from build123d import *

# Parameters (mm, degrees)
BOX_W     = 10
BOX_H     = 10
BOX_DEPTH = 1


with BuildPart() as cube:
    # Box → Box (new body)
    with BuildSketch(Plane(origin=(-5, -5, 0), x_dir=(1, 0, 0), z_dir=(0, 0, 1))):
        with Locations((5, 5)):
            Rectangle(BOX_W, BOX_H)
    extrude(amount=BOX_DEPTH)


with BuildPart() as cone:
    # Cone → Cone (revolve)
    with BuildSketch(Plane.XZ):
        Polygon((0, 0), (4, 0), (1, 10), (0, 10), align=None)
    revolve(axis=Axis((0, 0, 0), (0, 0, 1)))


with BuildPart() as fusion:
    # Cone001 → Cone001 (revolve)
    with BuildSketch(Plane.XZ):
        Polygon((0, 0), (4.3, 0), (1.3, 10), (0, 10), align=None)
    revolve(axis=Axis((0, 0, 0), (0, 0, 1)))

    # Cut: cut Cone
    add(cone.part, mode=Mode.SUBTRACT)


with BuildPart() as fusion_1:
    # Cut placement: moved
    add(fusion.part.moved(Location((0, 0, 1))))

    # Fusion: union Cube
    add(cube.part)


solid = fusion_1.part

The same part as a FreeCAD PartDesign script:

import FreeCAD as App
import Part
import Sketcher

doc = App.newDocument("Part")
body = doc.addObject("PartDesign::Body", "Body")

# Sketch on XY plane
sketch1 = body.newObject("Sketcher::SketchObject", "Sketch")
sketch1.AttachmentSupport = (doc.getObject("XY_Plane"), [""])
sketch1.MapMode = "FlatFace"
sketch1.addGeometry([
    Part.LineSegment(App.Vector(-5, 5, 0), App.Vector(-5, -5, 0)),
    Part.LineSegment(App.Vector(-5, -5, 0), App.Vector(5, -5, 0)),
    Part.LineSegment(App.Vector(5, -5, 0), App.Vector(5, 5, 0)),
    Part.LineSegment(App.Vector(5, 5, 0), App.Vector(-5, 5, 0)),
], False)
sketch1.addConstraint([
    Sketcher.Constraint("Coincident", 0, 2, 1, 1),
    Sketcher.Constraint("Coincident", 1, 2, 2, 1),
    Sketcher.Constraint("Coincident", 2, 2, 3, 1),
    Sketcher.Constraint("Coincident", 3, 2, 0, 1),
    Sketcher.Constraint("Vertical", 0),
    Sketcher.Constraint("Horizontal", 1),
    Sketcher.Constraint("Vertical", 2),
    Sketcher.Constraint("Horizontal", 3),
    Sketcher.Constraint("Symmetric", 0, 2, 2, 2, -1, 1),
    Sketcher.Constraint("Equal", 3, 0),
    Sketcher.Constraint("DistanceX", 1, 1, 1, 2, 10.0),
])
pad1 = body.newObject("PartDesign::Pad", "Pad")
pad1.Profile = sketch1
pad1.Length = 1
body2 = doc.addObject("PartDesign::Body", "Body001")

# Sketch on XZ plane
sketch2 = body2.newObject("Sketcher::SketchObject", "Sketch001")
sketch2.AttachmentSupport = (doc.getObject("XZ_Plane001"), [""])
sketch2.MapMode = "FlatFace"
sketch2.addGeometry([
    Part.LineSegment(App.Vector(0, 0, 0), App.Vector(4, 0, 0)),
    Part.LineSegment(App.Vector(4, 0, 0), App.Vector(1, 10, 0)),
    Part.LineSegment(App.Vector(1, 10, 0), App.Vector(0, 10, 0)),
    Part.LineSegment(App.Vector(0, 10, 0), App.Vector(0, 0, 0)),
], False)
sketch2.addConstraint([
    Sketcher.Constraint("Coincident", 0, 2, 1, 1),
    Sketcher.Constraint("Coincident", 1, 2, 2, 1),
    Sketcher.Constraint("Coincident", 2, 2, 3, 1),
    Sketcher.Constraint("Coincident", 3, 2, 0, 1),
    Sketcher.Constraint("Horizontal", 0),
    Sketcher.Constraint("Horizontal", 2),
    Sketcher.Constraint("Vertical", 3),
    Sketcher.Constraint("Coincident", 3, 2, -1, 1),
    Sketcher.Constraint("DistanceX", 0, 1, 0, 2, 4.0),
    Sketcher.Constraint("DistanceX", 2, 2, 2, 1, 1.0),
    Sketcher.Constraint("DistanceY", 3, 2, 3, 1, 10.0),
])
revolution = body2.newObject("PartDesign::Revolution", "Revolution")
revolution.Profile = sketch2
revolution.ReferenceAxis = (sketch2, ["V_Axis"])
revolution.Angle = 360
body3 = doc.addObject("PartDesign::Body", "Body002")

# Sketch on XZ plane
sketch3 = body3.newObject("Sketcher::SketchObject", "Sketch002")
sketch3.AttachmentSupport = (doc.getObject("XZ_Plane002"), [""])
sketch3.MapMode = "FlatFace"
sketch3.addGeometry([
    Part.LineSegment(App.Vector(0, 0, 0), App.Vector(4.3, 0, 0)),
    Part.LineSegment(App.Vector(4.3, 0, 0), App.Vector(1.3, 10, 0)),
    Part.LineSegment(App.Vector(1.3, 10, 0), App.Vector(0, 10, 0)),
    Part.LineSegment(App.Vector(0, 10, 0), App.Vector(0, 0, 0)),
], False)
sketch3.addConstraint([
    Sketcher.Constraint("Coincident", 0, 2, 1, 1),
    Sketcher.Constraint("Coincident", 1, 2, 2, 1),
    Sketcher.Constraint("Coincident", 2, 2, 3, 1),
    Sketcher.Constraint("Coincident", 3, 2, 0, 1),
    Sketcher.Constraint("Horizontal", 0),
    Sketcher.Constraint("Horizontal", 2),
    Sketcher.Constraint("Vertical", 3),
    Sketcher.Constraint("Coincident", 3, 2, -1, 1),
    Sketcher.Constraint("DistanceY", 3, 2, 3, 1, 10.0),
    Sketcher.Constraint("DistanceX", 0, 1, 0, 2, 4.3),
    Sketcher.Constraint("DistanceX", 2, 2, 2, 1, 1.3),
])
revolution2 = body3.newObject("PartDesign::Revolution", "Revolution001")
revolution2.Profile = sketch3
revolution2.ReferenceAxis = (sketch3, ["V_Axis"])
revolution2.Angle = 360
doc.recompute()

boolean = body3.newObject("PartDesign::Boolean", "Boolean")
boolean.Type = "Cut"
boolean.addObjects([body2])
body4 = doc.addObject("PartDesign::Body", "Body003")
doc.recompute()

body3.Placement = App.Placement(App.Vector(0, 0, 1), App.Rotation(App.Vector(0, 0, 1), 0))
boolean2 = body4.newObject("PartDesign::Boolean", "Boolean001")
boolean2.Type = "Fuse"
boolean2.addObjects([body3])
doc.recompute()

boolean3 = body4.newObject("PartDesign::Boolean", "Boolean002")
boolean3.Type = "Fuse"
boolean3.addObjects([body])

doc.recompute()
